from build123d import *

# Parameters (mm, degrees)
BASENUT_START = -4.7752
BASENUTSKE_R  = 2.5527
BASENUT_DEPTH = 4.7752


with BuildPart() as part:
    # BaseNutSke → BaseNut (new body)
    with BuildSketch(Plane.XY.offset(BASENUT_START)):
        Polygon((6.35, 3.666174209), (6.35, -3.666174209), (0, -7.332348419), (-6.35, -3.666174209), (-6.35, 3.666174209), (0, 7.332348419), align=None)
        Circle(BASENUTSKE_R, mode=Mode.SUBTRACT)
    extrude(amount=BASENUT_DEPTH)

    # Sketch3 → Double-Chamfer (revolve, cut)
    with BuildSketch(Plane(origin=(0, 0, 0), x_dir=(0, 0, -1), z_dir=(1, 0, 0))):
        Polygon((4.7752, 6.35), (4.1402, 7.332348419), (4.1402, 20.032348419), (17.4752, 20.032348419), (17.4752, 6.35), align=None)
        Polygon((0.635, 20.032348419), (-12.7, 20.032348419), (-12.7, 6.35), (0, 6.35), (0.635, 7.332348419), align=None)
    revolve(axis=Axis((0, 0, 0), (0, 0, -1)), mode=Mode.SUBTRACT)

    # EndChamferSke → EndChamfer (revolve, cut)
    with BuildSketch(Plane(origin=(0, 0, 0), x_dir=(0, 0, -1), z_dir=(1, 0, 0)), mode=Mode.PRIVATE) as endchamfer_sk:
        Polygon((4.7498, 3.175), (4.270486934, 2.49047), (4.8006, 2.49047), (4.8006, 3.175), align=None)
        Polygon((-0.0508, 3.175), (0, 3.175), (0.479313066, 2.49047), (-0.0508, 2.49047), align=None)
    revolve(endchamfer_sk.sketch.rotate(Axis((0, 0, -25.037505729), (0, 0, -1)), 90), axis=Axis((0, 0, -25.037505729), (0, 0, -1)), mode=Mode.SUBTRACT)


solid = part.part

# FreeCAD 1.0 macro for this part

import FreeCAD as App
import Part
import Sketcher
from FreeCAD import Vector
Q = App.Units.Quantity


def add_polygon(sketch, points):
    """Adds a closed chain of lines whose ends are joined by coincident constraints."""
    first, n = sketch.GeometryCount, len(points)
    for a, b in zip(points, points[1:] + points[:1]):
        sketch.addGeometry(Part.LineSegment(App.Vector(*a, 0), App.Vector(*b, 0)), False)
    for i in range(n):
        sketch.addConstraint(Sketcher.Constraint("Coincident", first + i, 2, first + (i + 1) % n, 1))

doc = App.newDocument("Part")
body = doc.addObject("PartDesign::Body", "Body")

# Sketch on XY plane
sketch1 = doc.addObject("Sketcher::SketchObject", "Sketch")
body.addObject(sketch1)
sketch1.AttachmentSupport = (doc.XY_Plane, [""])
sketch1.MapMode = "FlatFace"
sketch1.AttachmentOffset = App.Placement(Vector(0, 0, -0.188 * 25.4), App.Rotation())
add_polygon(sketch1, [(6.3, -3.7), (6.3, 3.7), (0, 7.3), (-6.3, 3.7), (-6.3, -3.7), (0, -7.3)])  # lines 0-5
sketch1.addGeometry(Part.Circle(Vector(0, 0, 0), Vector(0, 0, 1), 2.6), False)  # 6
sketch1.addConstraint(Sketcher.Constraint("Vertical", 0))
sketch1.addConstraint(Sketcher.Constraint("Vertical", 3))
sketch1.addConstraint(Sketcher.Constraint("Coincident", 6, 3, -1, 1))
sketch1.addConstraint(Sketcher.Constraint("Symmetric", 0, 2, 3, 2, -1, 1))
sketch1.addConstraint(Sketcher.Constraint("Symmetric", 1, 2, 4, 2, -1, 1))
sketch1.addConstraint(Sketcher.Constraint("PointOnObject", 1, 2, -2))
sketch1.addConstraint(Sketcher.Constraint("Parallel", 2, 5))
sketch1.addConstraint(Sketcher.Constraint("Horizontal", 0, 2, 2, 2))
sketch1.addConstraint(Sketcher.Constraint("Diameter", 6, Q("0.201 in")))
sketch1.addConstraint(Sketcher.Constraint("Angle", 1, Q("150 deg")))
sketch1.addConstraint(Sketcher.Constraint("DistanceX", 2, 2, 0, 2, Q("0.5 in")))
sketch1.addConstraint(Sketcher.Constraint("DistanceY", 0, 1, 0, 2, Q("7.332348 mm")))
pad1 = doc.addObject("PartDesign::Pad", "Pad")
body.addObject(pad1)
pad1.Profile = sketch1
pad1.Length = Q("0.188 in")

# Sketch on YZ plane
sketch2 = doc.addObject("Sketcher::SketchObject", "Sketch001")
body.addObject(sketch2)
sketch2.AttachmentSupport = (doc.YZ_Plane, [""])
sketch2.MapMode = "FlatFace"
add_polygon(sketch2, [(7.3, -4.1), (6.3, -4.8), (6.3, -17.5), (20, -17.5), (20, -4.1)])  # lines 0-4
add_polygon(sketch2, [(20, -0.6), (20, 12.7), (6.3, 12.7), (6.3, 0), (7.3, -0.6)])  # lines 5-9
sketch2.addConstraint(Sketcher.Constraint("Vertical", 1))
sketch2.addConstraint(Sketcher.Constraint("Horizontal", 2))
sketch2.addConstraint(Sketcher.Constraint("Vertical", 3))
sketch2.addConstraint(Sketcher.Constraint("Horizontal", 4))
sketch2.addConstraint(Sketcher.Constraint("Vertical", 5))
sketch2.addConstraint(Sketcher.Constraint("Horizontal", 6))
sketch2.addConstraint(Sketcher.Constraint("Vertical", 7))
sketch2.addConstraint(Sketcher.Constraint("Horizontal", 9))
sketch2.addConstraint(Sketcher.Constraint("PointOnObject", 7, 2, -1))
sketch2.addConstraint(Sketcher.Constraint("Vertical", 3, 2, 5, 2))
sketch2.addConstraint(Sketcher.Constraint("Vertical", 1, 2, 6, 2))
sketch2.addConstraint(Sketcher.Constraint("Vertical", 4, 2, 8, 2))
sketch2.addConstraint(Sketcher.Constraint("Equal", 9, 1))
sketch2.addConstraint(Sketcher.Constraint("Equal", 3, 5))
sketch2.addConstraint(Sketcher.Constraint("Equal", 1, 7))
sketch2.addConstraint(Sketcher.Constraint("DistanceX", 4, 2, 4, 1, Q("0.5 in")))
sketch2.addConstraint(Sketcher.Constraint("DistanceY", 3, 1, 3, 2, Q("0.525 in")))
sketch2.addConstraint(Sketcher.Constraint("DistanceX", -1, 1, 0, 2, Q("0.25 in")))
sketch2.addConstraint(Sketcher.Constraint("DistanceY", 0, 2, -1, 1, Q("0.188 in")))
sketch2.addConstraint(Sketcher.Constraint("DistanceX", 2, 1, 2, 2, Q("13.682348 mm")))
groove = doc.addObject("PartDesign::Groove", "Groove")
body.addObject(groove)
groove.Profile = sketch2
groove.ReferenceAxis = (sketch2, ["V_Axis"])
groove.Angle = 360

# Sketch on YZ plane
sketch3 = doc.addObject("Sketcher::SketchObject", "Sketch002")
body.addObject(sketch3)
sketch3.AttachmentSupport = (doc.YZ_Plane, [""])
sketch3.MapMode = "FlatFace"
add_polygon(sketch3, [(3.17, -4.75), (2.49, -4.27), (2.49, -4.8), (3.17, -4.8)])  # lines 0-3
add_polygon(sketch3, [(3.17, 0), (3.17, 0.05), (2.49, 0.05), (2.49, -0.48)])  # lines 4-7
sketch3.addConstraint(Sketcher.Constraint("Vertical", 1))
sketch3.addConstraint(Sketcher.Constraint("Horizontal", 2))
sketch3.addConstraint(Sketcher.Constraint("Vertical", 3))
sketch3.addConstraint(Sketcher.Constraint("Vertical", 4))
sketch3.addConstraint(Sketcher.Constraint("Horizontal", 5))
sketch3.addConstraint(Sketcher.Constraint("Vertical", 6))
sketch3.addConstraint(Sketcher.Constraint("PointOnObject", 7, 2, -1))
sketch3.addConstraint(Sketcher.Constraint("Vertical", 3, 2, 4, 2))
sketch3.addConstraint(Sketcher.Constraint("Vertical", 1, 2, 5, 2))
sketch3.addConstraint(Sketcher.Constraint("Equal", 3, 4))
sketch3.addConstraint(Sketcher.Constraint("Equal", 1, 6))
sketch3.addConstraint(Sketcher.Constraint("Angle", 0, Q("145 deg")))
sketch3.addConstraint(Sketcher.Constraint("DistanceY", 3, 1, 3, 2, Q("0.002 in")))
sketch3.addConstraint(Sketcher.Constraint("DistanceY", 1, 2, -1, 1, Q("0.189 in")))
sketch3.addConstraint(Sketcher.Constraint("DistanceX", -1, 1, 2, 2, Q("0.125 in")))
sketch3.addConstraint(Sketcher.Constraint("Distance", 0, Q("0.0328999 in")))
groove2 = doc.addObject("PartDesign::Groove", "Groove001")
body.addObject(groove2)
groove2.Profile = sketch3
groove2.ReferenceAxis = (sketch3, ["V_Axis"])
groove2.Angle = 360

doc.recompute()
